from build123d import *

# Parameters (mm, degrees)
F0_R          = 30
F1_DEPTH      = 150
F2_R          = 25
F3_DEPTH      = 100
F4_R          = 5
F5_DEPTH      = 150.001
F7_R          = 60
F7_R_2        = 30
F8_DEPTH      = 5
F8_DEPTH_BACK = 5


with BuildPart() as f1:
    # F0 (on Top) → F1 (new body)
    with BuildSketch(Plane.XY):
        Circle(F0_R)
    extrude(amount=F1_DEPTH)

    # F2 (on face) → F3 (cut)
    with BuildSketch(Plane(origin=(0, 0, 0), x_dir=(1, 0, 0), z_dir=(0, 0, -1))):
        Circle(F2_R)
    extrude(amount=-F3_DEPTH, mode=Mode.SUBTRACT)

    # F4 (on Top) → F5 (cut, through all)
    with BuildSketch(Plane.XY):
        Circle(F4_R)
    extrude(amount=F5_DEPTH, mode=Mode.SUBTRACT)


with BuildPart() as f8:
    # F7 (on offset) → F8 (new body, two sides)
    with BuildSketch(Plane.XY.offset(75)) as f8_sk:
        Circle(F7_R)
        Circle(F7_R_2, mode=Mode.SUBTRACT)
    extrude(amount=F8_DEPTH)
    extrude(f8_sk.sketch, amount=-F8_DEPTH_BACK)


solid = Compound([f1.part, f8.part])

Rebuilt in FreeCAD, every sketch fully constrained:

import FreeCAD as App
import Part
import Sketcher
Q = App.Units.Quantity

doc = App.newDocument("Part")
params = doc.addObject("Spreadsheet::Sheet", "Params")
for row, (alias, value) in enumerate([
    ("sketch1_diameter", "60 mm"),
    ("pad1_length", "150 mm"),
    ("sketch2_diameter", "50 mm"),
    ("pocket1_length", "100 mm"),
    ("sketch3_diameter", "10 mm"),
    ("sketch4_diameter", "120 mm"),
    ("sketch4_diameter2", "60 mm"),
    ("pad2_length", "5 mm"),
    ("pad2_length2", "5 mm"),
], start=1):
    params.set(f"A{row}", alias)
    params.set(f"B{row}", "=" + value)
    params.setAlias(f"B{row}", alias)

body = doc.addObject("PartDesign::Body", "Body")

sketch1 = body.newObject("Sketcher::SketchObject", "Sketch")
sketch1.AttachmentSupport = (doc.getObject("XY_Plane"), [""])
sketch1.MapMode = "FlatFace"
sketch1.addGeometry(Part.Circle(App.Vector(0, 0, 0), App.Vector(0, 0, 1), 30), False)
sketch1.addConstraint([
    Sketcher.Constraint("Coincident", 0, 3, -1, 1),
    Sketcher.Constraint("Diameter", 0, Q("60 mm")),
])
sketch1.setExpression("Constraints[1]", "Params.sketch1_diameter")
pad1 = body.newObject("PartDesign::Pad", "Pad")
pad1.Profile = sketch1
pad1.setExpression("Length", "Params.pad1_length")

sketch2 = body.newObject("Sketcher::SketchObject", "Sketch001")
sketch2.AttachmentSupport = (doc.getObject("XY_Plane"), [""])
sketch2.MapMode = "FlatFace"
sketch2.addGeometry(Part.Circle(App.Vector(0, 0, 0), App.Vector(0, 0, 1), 25), False)
sketch2.addConstraint([
    Sketcher.Constraint("Coincident", 0, 3, -1, 1),
    Sketcher.Constraint("Diameter", 0, Q("50 mm")),
])
sketch2.setExpression("Constraints[1]", "Params.sketch2_diameter")
pocket1 = body.newObject("PartDesign::Pocket", "Pocket")
pocket1.Profile = sketch2
pocket1.setExpression("Length", "Params.pocket1_length")
pocket1.Reversed = True

sketch3 = body.newObject("Sketcher::SketchObject", "Sketch002")
sketch3.AttachmentSupport = (doc.getObject("XY_Plane"), [""])
sketch3.MapMode = "FlatFace"
sketch3.addGeometry(Part.Circle(App.Vector(0, 0, 0), App.Vector(0, 0, 1), 5), False)
sketch3.addConstraint([
    Sketcher.Constraint("Coincident", 0, 3, -1, 1),
    Sketcher.Constraint("Diameter", 0, Q("10 mm")),
])
sketch3.setExpression("Constraints[1]", "Params.sketch3_diameter")
pocket2 = body.newObject("PartDesign::Pocket", "Pocket001")
pocket2.Profile = sketch3
pocket2.Type = "ThroughAll"
pocket2.Reversed = True
body2 = doc.addObject("PartDesign::Body", "Body001")

sketch4 = body2.newObject("Sketcher::SketchObject", "Sketch003")
sketch4.AttachmentSupport = (doc.getObject("XY_Plane001"), [""])
sketch4.MapMode = "FlatFace"
sketch4.AttachmentOffset = App.Placement(App.Vector(0, 0, 75), App.Rotation())
sketch4.addGeometry([
    Part.Circle(App.Vector(0, 0, 0), App.Vector(0, 0, 1), 60),
    Part.Circle(App.Vector(0, 0, 0), App.Vector(0, 0, 1), 30),
], False)
sketch4.addConstraint([
    Sketcher.Constraint("Coincident", 0, 3, -1, 1),
    Sketcher.Constraint("Coincident", 1, 3, -1, 1),
    Sketcher.Constraint("Diameter", 0, Q("120 mm")),
    Sketcher.Constraint("Diameter", 1, Q("60 mm")),
])
sketch4.setExpression("Constraints[2]", "Params.sketch4_diameter")
sketch4.setExpression("Constraints[3]", "Params.sketch4_diameter2")
pad2 = body2.newObject("PartDesign::Pad", "Pad001")
pad2.Profile = sketch4
pad2.Type = "TwoLengths"
pad2.setExpression("Length", "Params.pad2_length")
pad2.setExpression("Length2", "Params.pad2_length2")

doc.recompute()
